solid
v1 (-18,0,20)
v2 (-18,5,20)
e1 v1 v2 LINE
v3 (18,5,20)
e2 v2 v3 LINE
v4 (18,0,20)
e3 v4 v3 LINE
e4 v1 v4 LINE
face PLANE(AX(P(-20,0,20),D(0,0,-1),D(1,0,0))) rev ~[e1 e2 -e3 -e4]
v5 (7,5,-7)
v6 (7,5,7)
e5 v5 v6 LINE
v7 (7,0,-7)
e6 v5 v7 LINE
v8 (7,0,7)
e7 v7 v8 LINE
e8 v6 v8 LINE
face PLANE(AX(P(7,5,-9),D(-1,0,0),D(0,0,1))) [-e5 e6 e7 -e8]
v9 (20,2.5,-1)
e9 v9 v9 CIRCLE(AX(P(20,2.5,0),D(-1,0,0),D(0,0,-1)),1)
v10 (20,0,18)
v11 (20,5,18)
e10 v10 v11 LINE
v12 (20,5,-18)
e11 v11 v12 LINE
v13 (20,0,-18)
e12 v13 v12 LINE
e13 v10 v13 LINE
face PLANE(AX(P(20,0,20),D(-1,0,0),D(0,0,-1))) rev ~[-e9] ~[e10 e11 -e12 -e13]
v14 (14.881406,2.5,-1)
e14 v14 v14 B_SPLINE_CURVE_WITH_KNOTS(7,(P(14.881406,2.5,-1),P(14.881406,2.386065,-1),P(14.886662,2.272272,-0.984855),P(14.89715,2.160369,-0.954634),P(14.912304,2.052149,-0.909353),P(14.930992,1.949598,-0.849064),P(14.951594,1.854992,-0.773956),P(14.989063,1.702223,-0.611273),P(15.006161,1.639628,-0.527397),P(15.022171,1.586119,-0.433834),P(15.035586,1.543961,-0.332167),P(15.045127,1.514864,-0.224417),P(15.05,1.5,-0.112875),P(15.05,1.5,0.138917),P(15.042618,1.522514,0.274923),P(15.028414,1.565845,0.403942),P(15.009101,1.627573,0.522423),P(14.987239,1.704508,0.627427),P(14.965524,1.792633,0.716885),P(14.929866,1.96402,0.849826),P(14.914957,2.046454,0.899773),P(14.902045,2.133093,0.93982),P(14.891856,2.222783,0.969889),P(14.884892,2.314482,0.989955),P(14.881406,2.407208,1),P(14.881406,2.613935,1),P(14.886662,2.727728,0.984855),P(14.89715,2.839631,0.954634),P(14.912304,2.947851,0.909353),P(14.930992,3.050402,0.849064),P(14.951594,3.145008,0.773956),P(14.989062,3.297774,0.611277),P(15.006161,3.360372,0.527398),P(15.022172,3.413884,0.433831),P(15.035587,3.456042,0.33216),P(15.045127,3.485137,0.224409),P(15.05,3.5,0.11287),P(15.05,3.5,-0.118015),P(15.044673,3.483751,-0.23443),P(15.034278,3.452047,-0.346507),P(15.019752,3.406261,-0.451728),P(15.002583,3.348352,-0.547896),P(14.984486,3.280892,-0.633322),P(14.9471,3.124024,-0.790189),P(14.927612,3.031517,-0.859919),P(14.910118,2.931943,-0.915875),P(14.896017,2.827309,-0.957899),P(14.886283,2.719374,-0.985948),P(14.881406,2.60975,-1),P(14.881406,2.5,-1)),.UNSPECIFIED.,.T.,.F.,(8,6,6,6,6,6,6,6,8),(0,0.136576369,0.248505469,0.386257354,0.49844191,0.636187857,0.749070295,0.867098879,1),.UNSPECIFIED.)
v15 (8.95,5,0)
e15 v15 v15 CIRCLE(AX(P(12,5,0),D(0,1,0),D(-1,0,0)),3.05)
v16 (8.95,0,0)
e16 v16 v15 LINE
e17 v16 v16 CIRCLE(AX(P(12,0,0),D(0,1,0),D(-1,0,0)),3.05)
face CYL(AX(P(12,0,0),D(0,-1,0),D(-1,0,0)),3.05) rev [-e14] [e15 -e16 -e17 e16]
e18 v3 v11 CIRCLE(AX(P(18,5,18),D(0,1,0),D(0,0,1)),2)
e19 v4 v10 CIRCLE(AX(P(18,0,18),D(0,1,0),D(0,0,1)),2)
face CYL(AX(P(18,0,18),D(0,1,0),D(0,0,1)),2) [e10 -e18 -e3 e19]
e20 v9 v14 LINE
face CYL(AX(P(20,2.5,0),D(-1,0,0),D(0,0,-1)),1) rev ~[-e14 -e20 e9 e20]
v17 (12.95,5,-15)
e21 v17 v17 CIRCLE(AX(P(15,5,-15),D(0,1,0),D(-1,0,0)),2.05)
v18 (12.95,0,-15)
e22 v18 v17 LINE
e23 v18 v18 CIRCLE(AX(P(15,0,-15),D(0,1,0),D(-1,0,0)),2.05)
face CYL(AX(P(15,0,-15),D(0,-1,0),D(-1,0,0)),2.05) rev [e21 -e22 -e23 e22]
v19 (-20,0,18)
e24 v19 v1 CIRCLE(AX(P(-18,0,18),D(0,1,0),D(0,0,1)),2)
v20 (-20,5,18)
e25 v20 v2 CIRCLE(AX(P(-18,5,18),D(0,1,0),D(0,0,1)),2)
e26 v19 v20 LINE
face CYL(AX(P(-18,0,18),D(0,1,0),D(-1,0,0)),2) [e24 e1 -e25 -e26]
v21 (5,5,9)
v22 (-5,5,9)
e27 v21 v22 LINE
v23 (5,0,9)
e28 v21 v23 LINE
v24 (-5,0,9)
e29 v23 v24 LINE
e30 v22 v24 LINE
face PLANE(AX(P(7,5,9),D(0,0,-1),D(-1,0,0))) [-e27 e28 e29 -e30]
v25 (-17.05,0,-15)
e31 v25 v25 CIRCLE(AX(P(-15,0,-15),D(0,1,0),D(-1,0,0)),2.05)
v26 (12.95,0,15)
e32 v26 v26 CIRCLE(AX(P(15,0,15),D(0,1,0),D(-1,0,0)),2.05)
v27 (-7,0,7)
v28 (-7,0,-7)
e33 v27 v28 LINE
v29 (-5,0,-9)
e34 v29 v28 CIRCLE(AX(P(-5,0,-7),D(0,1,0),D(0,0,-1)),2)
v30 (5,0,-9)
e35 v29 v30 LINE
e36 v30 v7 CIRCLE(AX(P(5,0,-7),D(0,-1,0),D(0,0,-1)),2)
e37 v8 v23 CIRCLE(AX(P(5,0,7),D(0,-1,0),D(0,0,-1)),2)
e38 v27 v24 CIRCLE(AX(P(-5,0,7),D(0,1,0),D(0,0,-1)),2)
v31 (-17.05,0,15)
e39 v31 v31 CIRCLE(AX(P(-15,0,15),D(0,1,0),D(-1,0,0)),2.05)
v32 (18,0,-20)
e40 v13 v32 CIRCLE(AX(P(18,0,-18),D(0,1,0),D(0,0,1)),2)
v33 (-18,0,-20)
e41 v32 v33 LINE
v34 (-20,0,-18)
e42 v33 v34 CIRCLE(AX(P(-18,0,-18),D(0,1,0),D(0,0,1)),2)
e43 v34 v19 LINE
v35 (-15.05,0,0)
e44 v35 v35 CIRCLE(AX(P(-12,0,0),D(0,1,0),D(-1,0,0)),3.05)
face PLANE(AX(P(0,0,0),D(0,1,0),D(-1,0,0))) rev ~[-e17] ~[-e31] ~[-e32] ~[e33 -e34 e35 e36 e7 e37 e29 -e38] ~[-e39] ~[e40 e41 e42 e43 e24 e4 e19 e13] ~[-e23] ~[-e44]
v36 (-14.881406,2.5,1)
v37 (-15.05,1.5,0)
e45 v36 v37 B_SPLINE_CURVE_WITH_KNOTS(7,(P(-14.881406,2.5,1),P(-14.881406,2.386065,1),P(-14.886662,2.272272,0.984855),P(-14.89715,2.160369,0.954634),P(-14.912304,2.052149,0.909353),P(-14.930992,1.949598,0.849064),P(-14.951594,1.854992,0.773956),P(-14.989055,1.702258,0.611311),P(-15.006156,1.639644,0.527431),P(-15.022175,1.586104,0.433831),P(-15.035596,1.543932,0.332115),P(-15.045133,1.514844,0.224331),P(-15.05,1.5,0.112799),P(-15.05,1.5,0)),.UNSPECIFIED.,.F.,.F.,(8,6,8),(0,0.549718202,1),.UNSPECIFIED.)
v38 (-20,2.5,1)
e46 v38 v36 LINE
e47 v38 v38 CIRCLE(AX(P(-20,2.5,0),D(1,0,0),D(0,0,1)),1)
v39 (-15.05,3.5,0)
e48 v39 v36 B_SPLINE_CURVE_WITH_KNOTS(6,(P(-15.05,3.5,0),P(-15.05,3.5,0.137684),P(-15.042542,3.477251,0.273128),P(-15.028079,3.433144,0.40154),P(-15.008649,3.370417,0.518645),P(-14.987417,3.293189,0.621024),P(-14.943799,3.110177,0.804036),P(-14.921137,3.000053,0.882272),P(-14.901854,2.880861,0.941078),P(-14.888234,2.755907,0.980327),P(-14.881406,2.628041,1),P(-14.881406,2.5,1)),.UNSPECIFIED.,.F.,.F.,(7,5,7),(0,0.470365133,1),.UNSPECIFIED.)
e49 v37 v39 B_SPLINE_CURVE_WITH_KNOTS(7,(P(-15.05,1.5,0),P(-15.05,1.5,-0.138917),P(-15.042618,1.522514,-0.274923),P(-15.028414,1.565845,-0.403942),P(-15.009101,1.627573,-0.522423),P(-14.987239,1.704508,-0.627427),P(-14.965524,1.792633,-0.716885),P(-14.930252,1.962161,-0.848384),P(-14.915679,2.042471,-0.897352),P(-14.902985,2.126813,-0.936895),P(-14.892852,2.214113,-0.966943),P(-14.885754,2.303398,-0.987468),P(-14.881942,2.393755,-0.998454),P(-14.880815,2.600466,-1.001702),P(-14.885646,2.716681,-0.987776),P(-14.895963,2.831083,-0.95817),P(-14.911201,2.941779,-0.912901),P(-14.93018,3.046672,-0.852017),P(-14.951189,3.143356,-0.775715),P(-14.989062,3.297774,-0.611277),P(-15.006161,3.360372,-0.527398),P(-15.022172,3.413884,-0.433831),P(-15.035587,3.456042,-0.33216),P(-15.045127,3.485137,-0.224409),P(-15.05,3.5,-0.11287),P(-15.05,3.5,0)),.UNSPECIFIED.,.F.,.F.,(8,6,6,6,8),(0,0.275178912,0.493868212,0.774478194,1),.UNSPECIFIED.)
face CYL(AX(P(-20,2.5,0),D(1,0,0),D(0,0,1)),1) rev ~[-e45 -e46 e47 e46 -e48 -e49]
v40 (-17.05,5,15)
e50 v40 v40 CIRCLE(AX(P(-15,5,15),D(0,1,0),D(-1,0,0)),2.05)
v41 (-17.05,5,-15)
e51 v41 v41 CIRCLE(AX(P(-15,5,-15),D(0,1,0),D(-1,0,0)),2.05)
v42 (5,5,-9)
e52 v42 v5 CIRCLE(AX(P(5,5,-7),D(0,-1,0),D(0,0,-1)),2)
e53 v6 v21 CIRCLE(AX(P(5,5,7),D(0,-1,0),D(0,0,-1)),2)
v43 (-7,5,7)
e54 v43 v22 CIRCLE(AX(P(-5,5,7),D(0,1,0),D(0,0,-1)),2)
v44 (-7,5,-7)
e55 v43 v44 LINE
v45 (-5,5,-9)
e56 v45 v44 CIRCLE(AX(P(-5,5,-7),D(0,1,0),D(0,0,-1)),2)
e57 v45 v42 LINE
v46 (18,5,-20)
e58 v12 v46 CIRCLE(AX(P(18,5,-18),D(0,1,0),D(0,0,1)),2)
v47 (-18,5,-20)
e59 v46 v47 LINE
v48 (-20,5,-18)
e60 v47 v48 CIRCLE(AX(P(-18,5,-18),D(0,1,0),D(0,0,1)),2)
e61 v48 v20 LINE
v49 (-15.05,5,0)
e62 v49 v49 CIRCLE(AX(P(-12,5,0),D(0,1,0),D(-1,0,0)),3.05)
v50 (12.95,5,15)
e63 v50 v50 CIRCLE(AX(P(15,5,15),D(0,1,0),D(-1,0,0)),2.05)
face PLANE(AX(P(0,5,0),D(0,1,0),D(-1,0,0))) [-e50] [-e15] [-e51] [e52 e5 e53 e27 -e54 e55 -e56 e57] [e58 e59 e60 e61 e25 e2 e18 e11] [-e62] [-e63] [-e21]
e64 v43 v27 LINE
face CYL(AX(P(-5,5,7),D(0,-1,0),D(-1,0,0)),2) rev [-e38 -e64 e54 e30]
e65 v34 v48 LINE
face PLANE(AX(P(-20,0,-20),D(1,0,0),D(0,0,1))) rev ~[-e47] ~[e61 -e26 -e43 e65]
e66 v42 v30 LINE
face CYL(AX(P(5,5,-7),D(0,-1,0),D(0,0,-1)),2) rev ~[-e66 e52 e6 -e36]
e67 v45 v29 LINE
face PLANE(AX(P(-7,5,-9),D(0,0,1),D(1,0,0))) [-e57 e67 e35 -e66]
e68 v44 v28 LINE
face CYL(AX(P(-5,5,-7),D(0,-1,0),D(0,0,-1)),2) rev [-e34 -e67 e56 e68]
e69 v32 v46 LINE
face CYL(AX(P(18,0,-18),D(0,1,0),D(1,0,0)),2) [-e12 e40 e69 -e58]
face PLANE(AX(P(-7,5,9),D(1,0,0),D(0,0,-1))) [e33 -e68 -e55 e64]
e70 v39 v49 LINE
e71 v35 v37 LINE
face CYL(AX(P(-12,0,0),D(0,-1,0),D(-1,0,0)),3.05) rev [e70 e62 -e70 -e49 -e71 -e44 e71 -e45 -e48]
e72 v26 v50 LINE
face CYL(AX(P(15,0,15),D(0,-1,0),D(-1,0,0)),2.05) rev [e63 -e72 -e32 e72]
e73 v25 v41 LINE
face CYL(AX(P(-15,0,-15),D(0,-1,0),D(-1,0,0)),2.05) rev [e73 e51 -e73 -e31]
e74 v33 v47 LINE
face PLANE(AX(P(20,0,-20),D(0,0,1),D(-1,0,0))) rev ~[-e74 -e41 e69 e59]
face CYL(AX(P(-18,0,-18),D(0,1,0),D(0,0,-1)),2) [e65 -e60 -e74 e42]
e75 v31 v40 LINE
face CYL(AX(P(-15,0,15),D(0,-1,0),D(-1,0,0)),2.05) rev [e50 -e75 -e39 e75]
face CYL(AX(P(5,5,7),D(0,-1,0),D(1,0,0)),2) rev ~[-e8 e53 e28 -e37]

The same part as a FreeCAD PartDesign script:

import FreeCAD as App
import Part
import Sketcher


def edges_at(feature, points):
    """Names of the edges that pass closest to the given points."""
    edges = feature.Shape.Edges
    near = lambda p: min(range(len(edges)), key=lambda i: edges[i].distToShape(Part.Vertex(*p))[0])
    return sorted({f"Edge{near(p) + 1}" for p in points})


def add_polygon(sketch, points):
    """Adds a closed chain of lines whose ends are joined by coincident constraints."""
    first, n = sketch.GeometryCount, len(points)
    for a, b in zip(points, points[1:] + points[:1]):
        sketch.addGeometry(Part.LineSegment(App.Vector(*a, 0), App.Vector(*b, 0)), False)
    for i in range(n):
        sketch.addConstraint(Sketcher.Constraint("Coincident", first + i, 2, first + (i + 1) % n, 1))

doc = App.newDocument("Part")
body = doc.addObject("PartDesign::Body", "Body")

# Sketch on XZ plane
sketch1 = body.newObject("Sketcher::SketchObject", "Sketch")
sketch1.AttachmentSupport = (doc.getObject("XZ_Plane"), [""])
sketch1.MapMode = "FlatFace"
add_polygon(sketch1, [(-20, -20), (-20, 20), (20, 20), (20, -20)])  # lines 0-3
sketch1.addGeometry(Part.Circle(App.Vector(15, -15, 0), App.Vector(0, 0, 1), 2), False)  # 4
sketch1.addGeometry(Part.Circle(App.Vector(-15, -15, 0), App.Vector(0, 0, 1), 2), False)  # 5
sketch1.addGeometry(Part.Circle(App.Vector(12, 0, 0), App.Vector(0, 0, 1), 3), False)  # 6
sketch1.addGeometry(Part.Circle(App.Vector(15, 15, 0), App.Vector(0, 0, 1), 2), False)  # 7
sketch1.addGeometry(Part.Circle(App.Vector(-12, 0, 0), App.Vector(0, 0, 1), 3), False)  # 8
sketch1.addGeometry(Part.Circle(App.Vector(-15, 15, 0), App.Vector(0, 0, 1), 2), False)  # 9
sketch1.addConstraint([
    Sketcher.Constraint("Vertical", 0),
    Sketcher.Constraint("Horizontal", 1),
    Sketcher.Constraint("Vertical", 2),
    Sketcher.Constraint("Horizontal", 3),
    Sketcher.Constraint("Equal", 4, 5),
    Sketcher.Constraint("Equal", 5, 7),
    Sketcher.Constraint("Equal", 6, 8),
    Sketcher.Constraint("Equal", 7, 9),
    Sketcher.Constraint("Symmetric", 5, 3, 7, 3, -1, 1),
    Sketcher.Constraint("Symmetric", 6, 3, 8, 3, -1, 1),
    Sketcher.Constraint("Symmetric", 4, 3, 9, 3, -1, 1),
    Sketcher.Constraint("Symmetric", 0, 2, 2, 2, -1, 1),
    Sketcher.Constraint("Symmetric", 4, 3, 5, 3, -2),
    Sketcher.Constraint("PointOnObject", 6, 3, -1),
    Sketcher.Constraint("Equal", 3, 0),
    Sketcher.Constraint("Diameter", 4, 4.1),
    Sketcher.Constraint("Diameter", 6, 6.1),
    Sketcher.Constraint("DistanceX", 1, 1, 1, 2, 40.0),
    Sketcher.Constraint("DistanceX", 5, 3, 4, 3, 30.0),
    Sketcher.Constraint("DistanceY", 4, 3, 7, 3, 30.0),
    Sketcher.Constraint("DistanceX", 0, 2, 8, 3, 8.0),
])
pad1 = body.newObject("PartDesign::Pad", "Pad")
pad1.Profile = sketch1
pad1.Length = 5
pad1.Reversed = True

# Sketch on YZ plane
sketch2 = body.newObject("Sketcher::SketchObject", "Sketch001")
sketch2.AttachmentSupport = (doc.getObject("YZ_Plane"), [""])
sketch2.MapMode = "FlatFace"
sketch2.AttachmentOffset = App.Placement(App.Vector(0, 0, 20), App.Rotation())
sketch2.addGeometry(Part.Circle(App.Vector(2.5, 0, 0), App.Vector(0, 0, 1), 1), False)
sketch2.addConstraint([
    Sketcher.Constraint("PointOnObject", 0, 3, -1),
    Sketcher.Constraint("Diameter", 0, 2.0),
    Sketcher.Constraint("DistanceX", -1, 1, 0, 3, 2.5),
])
doc.recompute()
hole = body.newObject("PartDesign::Hole", "Hole")
hole.Profile = sketch2
hole.ThreadType = "None"
hole.Diameter = 2
hole.DepthType = "Dimension"
hole.Depth = 8
hole.DrillPoint = "Angled"
hole.DrillPointAngle = 118

# Sketch on YZ plane
sketch3 = body.newObject("Sketcher::SketchObject", "Sketch002")
sketch3.AttachmentSupport = (doc.getObject("YZ_Plane"), [""])
sketch3.MapMode = "FlatFace"
sketch3.AttachmentOffset = App.Placement(App.Vector(0, 0, -20), App.Rotation())
sketch3.addGeometry(Part.Circle(App.Vector(2.5, 0, 0), App.Vector(0, 0, 1), 1), False)
sketch3.addConstraint([
    Sketcher.Constraint("PointOnObject", 0, 3, -1),
    Sketcher.Constraint("Diameter", 0, 2.0),
    Sketcher.Constraint("DistanceX", -1, 1, 0, 3, 2.5),
])
doc.recompute()
hole2 = body.newObject("PartDesign::Hole", "Hole001")
hole2.Profile = sketch3
hole2.ThreadType = "None"
hole2.Diameter = 2
hole2.DepthType = "Dimension"
hole2.Depth = 8
hole2.DrillPoint = "Angled"
hole2.DrillPointAngle = 118
hole2.Reversed = True

# Sketch on XZ plane
sketch4 = body.newObject("Sketcher::SketchObject", "Sketch003")
sketch4.AttachmentSupport = (doc.getObject("XZ_Plane"), [""])
sketch4.MapMode = "FlatFace"
sketch4.AttachmentOffset = App.Placement(App.Vector(0, 0, -5), App.Rotation())
add_polygon(sketch4, [(-7, 9), (7, 9), (7, -9), (-7, -9)])  # lines 0-3
sketch4.addConstraint([
    Sketcher.Constraint("Horizontal", 0),
    Sketcher.Constraint("Vertical", 1),
    Sketcher.Constraint("Horizontal", 2),
    Sketcher.Constraint("Vertical", 3),
    Sketcher.Constraint("Symmetric", 0, 2, 2, 2, -1, 1),
    Sketcher.Constraint("DistanceX", 0, 1, 0, 2, 14.0),
    Sketcher.Constraint("DistanceY", 1, 2, 1, 1, 18.0),
])
pocket1 = body.newObject("PartDesign::Pocket", "Pocket")
pocket1.Profile = sketch4
pocket1.Length = 10
pocket1.Reversed = True
doc.recompute()

fillet = body.newObject("PartDesign::Fillet", "Fillet")
fillet.Base = (pocket1, edges_at(pocket1, [(20, 2.5, 20)]))
fillet.Radius = 2
doc.recompute()

fillet2 = body.newObject("PartDesign::Fillet", "Fillet001")
fillet2.Base = (fillet, edges_at(fillet, [(20, 2.5, -20)]))
fillet2.Radius = 2
doc.recompute()

fillet3 = body.newObject("PartDesign::Fillet", "Fillet002")
fillet3.Base = (fillet2, edges_at(fillet2, [(-20, 2.5, -20)]))
fillet3.Radius = 2
doc.recompute()

fillet4 = body.newObject("PartDesign::Fillet", "Fillet003")
fillet4.Base = (fillet3, edges_at(fillet3, [(-20, 2.5, 20)]))
fillet4.Radius = 2
doc.recompute()

fillet5 = body.newObject("PartDesign::Fillet", "Fillet004")
fillet5.Base = (fillet4, edges_at(fillet4, [(-7, 2.5, -9)]))
fillet5.Radius = 2
doc.recompute()

fillet6 = body.newObject("PartDesign::Fillet", "Fillet005")
fillet6.Base = (fillet5, edges_at(fillet5, [(-7, 2.5, 9)]))
fillet6.Radius = 2
doc.recompute()

fillet7 = body.newObject("PartDesign::Fillet", "Fillet006")
fillet7.Base = (fillet6, edges_at(fillet6, [(7, 2.5, -9)]))
fillet7.Radius = 2
doc.recompute()

fillet8 = body.newObject("PartDesign::Fillet", "Fillet007")
fillet8.Base = (fillet7, edges_at(fillet7, [(7, 2.5, 9)]))
fillet8.Radius = 2

doc.recompute()
